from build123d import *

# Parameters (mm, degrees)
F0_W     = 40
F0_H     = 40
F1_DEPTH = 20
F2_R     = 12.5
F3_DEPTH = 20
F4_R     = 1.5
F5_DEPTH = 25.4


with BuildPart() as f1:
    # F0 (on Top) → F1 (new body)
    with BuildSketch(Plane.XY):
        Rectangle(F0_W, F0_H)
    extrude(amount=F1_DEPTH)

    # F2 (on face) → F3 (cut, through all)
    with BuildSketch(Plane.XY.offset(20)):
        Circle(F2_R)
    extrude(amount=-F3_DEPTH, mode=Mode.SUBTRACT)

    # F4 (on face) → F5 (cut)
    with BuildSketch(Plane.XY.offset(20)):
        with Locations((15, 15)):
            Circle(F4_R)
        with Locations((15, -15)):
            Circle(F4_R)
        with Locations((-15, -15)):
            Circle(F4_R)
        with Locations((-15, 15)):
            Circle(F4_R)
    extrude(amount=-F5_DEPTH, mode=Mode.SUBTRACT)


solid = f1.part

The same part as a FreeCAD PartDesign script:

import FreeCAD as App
import Part
import Sketcher
from FreeCAD import Vector


def add_polygon(sketch, points):
    """Adds a closed chain of lines whose ends are joined by coincident constraints."""
    first, n = sketch.GeometryCount, len(points)
    for a, b in zip(points, points[1:] + points[:1]):
        sketch.addGeometry(Part.LineSegment(App.Vector(*a, 0), App.Vector(*b, 0)), False)
    for i in range(n):
        sketch.addConstraint(Sketcher.Constraint("Coincident", first + i, 2, first + (i + 1) % n, 1))

doc = App.newDocument("Part")
body = doc.addObject("PartDesign::Body", "Body")

sketch1 = body.newObject("Sketcher::SketchObject", "Sketch")
sketch1.AttachmentSupport = (doc.getObject("XY_Plane"), [""])
sketch1.MapMode = "FlatFace"
add_polygon(sketch1, [(-20, 20), (-20, -20), (20, -20), (20, 20)])
sketch1.addConstraint([
    Sketcher.Constraint("Vertical", 0),
    Sketcher.Constraint("Horizontal", 1),
    Sketcher.Constraint("Vertical", 2),
    Sketcher.Constraint("Horizontal", 3),
    Sketcher.Constraint("Symmetric", 0, 2, 2, 2, -1, 1),
    Sketcher.Constraint("Equal", 3, 0),
    Sketcher.Constraint("DistanceX", 1, 1, 1, 2, 40.0),
])
pad1 = body.newObject("PartDesign::Pad", "Pad")
pad1.Profile = sketch1
pad1.Length = 20

sketch2 = body.newObject("Sketcher::SketchObject", "Sketch001")
sketch2.AttachmentSupport = (doc.getObject("XY_Plane"), [""])
sketch2.MapMode = "FlatFace"
sketch2.AttachmentOffset = App.Placement(Vector(0, 0, 20), App.Rotation())
sketch2.addGeometry(Part.Circle(Vector(0, 0, 0), Vector(0, 0, 1), 12), False)
sketch2.addConstraint([
    Sketcher.Constraint("Coincident", 0, 3, -1, 1),
    Sketcher.Constraint("Diameter", 0, 25.0),
])
pocket1 = body.newObject("PartDesign::Pocket", "Pocket")
pocket1.Profile = sketch2
pocket1.Type = "ThroughAll"

sketch3 = body.newObject("Sketcher::SketchObject", "Sketch002")
sketch3.AttachmentSupport = (doc.getObject("XY_Plane"), [""])
sketch3.MapMode = "FlatFace"
sketch3.AttachmentOffset = App.Placement(Vector(0, 0, 20), App.Rotation())
sketch3.addGeometry([
    Part.Circle(Vector(15, 15, 0), Vector(0, 0, 1), 1.5),
    Part.Circle(Vector(15, -15, 0), Vector(0, 0, 1), 1.5),
    Part.Circle(Vector(-15, -15, 0), Vector(0, 0, 1), 1.5),
    Part.Circle(Vector(-15, 15, 0), Vector(0, 0, 1), 1.5),
], False)
sketch3.addConstraint([
    Sketcher.Constraint("Equal", 0, 1),
    Sketcher.Constraint("Equal", 1, 2),
    Sketcher.Constraint("Equal", 2, 3),
    Sketcher.Constraint("Symmetric", 0, 3, 2, 3, -1, 1),
    Sketcher.Constraint("Symmetric", 1, 3, 3, 3, -1, 1),
    Sketcher.Constraint("Symmetric", 1, 3, 2, 3, -2),
    Sketcher.Constraint("Diameter", 0, 3.0),
    Sketcher.Constraint("DistanceX", -1, 1, 0, 3, 15.0),
    Sketcher.Constraint("DistanceY", -1, 1, 0, 3, 15.0),
])
pocket2 = body.newObject("PartDesign::Pocket", "Pocket001")
pocket2.Profile = sketch3
pocket2.Length = 25.4

doc.recompute()
